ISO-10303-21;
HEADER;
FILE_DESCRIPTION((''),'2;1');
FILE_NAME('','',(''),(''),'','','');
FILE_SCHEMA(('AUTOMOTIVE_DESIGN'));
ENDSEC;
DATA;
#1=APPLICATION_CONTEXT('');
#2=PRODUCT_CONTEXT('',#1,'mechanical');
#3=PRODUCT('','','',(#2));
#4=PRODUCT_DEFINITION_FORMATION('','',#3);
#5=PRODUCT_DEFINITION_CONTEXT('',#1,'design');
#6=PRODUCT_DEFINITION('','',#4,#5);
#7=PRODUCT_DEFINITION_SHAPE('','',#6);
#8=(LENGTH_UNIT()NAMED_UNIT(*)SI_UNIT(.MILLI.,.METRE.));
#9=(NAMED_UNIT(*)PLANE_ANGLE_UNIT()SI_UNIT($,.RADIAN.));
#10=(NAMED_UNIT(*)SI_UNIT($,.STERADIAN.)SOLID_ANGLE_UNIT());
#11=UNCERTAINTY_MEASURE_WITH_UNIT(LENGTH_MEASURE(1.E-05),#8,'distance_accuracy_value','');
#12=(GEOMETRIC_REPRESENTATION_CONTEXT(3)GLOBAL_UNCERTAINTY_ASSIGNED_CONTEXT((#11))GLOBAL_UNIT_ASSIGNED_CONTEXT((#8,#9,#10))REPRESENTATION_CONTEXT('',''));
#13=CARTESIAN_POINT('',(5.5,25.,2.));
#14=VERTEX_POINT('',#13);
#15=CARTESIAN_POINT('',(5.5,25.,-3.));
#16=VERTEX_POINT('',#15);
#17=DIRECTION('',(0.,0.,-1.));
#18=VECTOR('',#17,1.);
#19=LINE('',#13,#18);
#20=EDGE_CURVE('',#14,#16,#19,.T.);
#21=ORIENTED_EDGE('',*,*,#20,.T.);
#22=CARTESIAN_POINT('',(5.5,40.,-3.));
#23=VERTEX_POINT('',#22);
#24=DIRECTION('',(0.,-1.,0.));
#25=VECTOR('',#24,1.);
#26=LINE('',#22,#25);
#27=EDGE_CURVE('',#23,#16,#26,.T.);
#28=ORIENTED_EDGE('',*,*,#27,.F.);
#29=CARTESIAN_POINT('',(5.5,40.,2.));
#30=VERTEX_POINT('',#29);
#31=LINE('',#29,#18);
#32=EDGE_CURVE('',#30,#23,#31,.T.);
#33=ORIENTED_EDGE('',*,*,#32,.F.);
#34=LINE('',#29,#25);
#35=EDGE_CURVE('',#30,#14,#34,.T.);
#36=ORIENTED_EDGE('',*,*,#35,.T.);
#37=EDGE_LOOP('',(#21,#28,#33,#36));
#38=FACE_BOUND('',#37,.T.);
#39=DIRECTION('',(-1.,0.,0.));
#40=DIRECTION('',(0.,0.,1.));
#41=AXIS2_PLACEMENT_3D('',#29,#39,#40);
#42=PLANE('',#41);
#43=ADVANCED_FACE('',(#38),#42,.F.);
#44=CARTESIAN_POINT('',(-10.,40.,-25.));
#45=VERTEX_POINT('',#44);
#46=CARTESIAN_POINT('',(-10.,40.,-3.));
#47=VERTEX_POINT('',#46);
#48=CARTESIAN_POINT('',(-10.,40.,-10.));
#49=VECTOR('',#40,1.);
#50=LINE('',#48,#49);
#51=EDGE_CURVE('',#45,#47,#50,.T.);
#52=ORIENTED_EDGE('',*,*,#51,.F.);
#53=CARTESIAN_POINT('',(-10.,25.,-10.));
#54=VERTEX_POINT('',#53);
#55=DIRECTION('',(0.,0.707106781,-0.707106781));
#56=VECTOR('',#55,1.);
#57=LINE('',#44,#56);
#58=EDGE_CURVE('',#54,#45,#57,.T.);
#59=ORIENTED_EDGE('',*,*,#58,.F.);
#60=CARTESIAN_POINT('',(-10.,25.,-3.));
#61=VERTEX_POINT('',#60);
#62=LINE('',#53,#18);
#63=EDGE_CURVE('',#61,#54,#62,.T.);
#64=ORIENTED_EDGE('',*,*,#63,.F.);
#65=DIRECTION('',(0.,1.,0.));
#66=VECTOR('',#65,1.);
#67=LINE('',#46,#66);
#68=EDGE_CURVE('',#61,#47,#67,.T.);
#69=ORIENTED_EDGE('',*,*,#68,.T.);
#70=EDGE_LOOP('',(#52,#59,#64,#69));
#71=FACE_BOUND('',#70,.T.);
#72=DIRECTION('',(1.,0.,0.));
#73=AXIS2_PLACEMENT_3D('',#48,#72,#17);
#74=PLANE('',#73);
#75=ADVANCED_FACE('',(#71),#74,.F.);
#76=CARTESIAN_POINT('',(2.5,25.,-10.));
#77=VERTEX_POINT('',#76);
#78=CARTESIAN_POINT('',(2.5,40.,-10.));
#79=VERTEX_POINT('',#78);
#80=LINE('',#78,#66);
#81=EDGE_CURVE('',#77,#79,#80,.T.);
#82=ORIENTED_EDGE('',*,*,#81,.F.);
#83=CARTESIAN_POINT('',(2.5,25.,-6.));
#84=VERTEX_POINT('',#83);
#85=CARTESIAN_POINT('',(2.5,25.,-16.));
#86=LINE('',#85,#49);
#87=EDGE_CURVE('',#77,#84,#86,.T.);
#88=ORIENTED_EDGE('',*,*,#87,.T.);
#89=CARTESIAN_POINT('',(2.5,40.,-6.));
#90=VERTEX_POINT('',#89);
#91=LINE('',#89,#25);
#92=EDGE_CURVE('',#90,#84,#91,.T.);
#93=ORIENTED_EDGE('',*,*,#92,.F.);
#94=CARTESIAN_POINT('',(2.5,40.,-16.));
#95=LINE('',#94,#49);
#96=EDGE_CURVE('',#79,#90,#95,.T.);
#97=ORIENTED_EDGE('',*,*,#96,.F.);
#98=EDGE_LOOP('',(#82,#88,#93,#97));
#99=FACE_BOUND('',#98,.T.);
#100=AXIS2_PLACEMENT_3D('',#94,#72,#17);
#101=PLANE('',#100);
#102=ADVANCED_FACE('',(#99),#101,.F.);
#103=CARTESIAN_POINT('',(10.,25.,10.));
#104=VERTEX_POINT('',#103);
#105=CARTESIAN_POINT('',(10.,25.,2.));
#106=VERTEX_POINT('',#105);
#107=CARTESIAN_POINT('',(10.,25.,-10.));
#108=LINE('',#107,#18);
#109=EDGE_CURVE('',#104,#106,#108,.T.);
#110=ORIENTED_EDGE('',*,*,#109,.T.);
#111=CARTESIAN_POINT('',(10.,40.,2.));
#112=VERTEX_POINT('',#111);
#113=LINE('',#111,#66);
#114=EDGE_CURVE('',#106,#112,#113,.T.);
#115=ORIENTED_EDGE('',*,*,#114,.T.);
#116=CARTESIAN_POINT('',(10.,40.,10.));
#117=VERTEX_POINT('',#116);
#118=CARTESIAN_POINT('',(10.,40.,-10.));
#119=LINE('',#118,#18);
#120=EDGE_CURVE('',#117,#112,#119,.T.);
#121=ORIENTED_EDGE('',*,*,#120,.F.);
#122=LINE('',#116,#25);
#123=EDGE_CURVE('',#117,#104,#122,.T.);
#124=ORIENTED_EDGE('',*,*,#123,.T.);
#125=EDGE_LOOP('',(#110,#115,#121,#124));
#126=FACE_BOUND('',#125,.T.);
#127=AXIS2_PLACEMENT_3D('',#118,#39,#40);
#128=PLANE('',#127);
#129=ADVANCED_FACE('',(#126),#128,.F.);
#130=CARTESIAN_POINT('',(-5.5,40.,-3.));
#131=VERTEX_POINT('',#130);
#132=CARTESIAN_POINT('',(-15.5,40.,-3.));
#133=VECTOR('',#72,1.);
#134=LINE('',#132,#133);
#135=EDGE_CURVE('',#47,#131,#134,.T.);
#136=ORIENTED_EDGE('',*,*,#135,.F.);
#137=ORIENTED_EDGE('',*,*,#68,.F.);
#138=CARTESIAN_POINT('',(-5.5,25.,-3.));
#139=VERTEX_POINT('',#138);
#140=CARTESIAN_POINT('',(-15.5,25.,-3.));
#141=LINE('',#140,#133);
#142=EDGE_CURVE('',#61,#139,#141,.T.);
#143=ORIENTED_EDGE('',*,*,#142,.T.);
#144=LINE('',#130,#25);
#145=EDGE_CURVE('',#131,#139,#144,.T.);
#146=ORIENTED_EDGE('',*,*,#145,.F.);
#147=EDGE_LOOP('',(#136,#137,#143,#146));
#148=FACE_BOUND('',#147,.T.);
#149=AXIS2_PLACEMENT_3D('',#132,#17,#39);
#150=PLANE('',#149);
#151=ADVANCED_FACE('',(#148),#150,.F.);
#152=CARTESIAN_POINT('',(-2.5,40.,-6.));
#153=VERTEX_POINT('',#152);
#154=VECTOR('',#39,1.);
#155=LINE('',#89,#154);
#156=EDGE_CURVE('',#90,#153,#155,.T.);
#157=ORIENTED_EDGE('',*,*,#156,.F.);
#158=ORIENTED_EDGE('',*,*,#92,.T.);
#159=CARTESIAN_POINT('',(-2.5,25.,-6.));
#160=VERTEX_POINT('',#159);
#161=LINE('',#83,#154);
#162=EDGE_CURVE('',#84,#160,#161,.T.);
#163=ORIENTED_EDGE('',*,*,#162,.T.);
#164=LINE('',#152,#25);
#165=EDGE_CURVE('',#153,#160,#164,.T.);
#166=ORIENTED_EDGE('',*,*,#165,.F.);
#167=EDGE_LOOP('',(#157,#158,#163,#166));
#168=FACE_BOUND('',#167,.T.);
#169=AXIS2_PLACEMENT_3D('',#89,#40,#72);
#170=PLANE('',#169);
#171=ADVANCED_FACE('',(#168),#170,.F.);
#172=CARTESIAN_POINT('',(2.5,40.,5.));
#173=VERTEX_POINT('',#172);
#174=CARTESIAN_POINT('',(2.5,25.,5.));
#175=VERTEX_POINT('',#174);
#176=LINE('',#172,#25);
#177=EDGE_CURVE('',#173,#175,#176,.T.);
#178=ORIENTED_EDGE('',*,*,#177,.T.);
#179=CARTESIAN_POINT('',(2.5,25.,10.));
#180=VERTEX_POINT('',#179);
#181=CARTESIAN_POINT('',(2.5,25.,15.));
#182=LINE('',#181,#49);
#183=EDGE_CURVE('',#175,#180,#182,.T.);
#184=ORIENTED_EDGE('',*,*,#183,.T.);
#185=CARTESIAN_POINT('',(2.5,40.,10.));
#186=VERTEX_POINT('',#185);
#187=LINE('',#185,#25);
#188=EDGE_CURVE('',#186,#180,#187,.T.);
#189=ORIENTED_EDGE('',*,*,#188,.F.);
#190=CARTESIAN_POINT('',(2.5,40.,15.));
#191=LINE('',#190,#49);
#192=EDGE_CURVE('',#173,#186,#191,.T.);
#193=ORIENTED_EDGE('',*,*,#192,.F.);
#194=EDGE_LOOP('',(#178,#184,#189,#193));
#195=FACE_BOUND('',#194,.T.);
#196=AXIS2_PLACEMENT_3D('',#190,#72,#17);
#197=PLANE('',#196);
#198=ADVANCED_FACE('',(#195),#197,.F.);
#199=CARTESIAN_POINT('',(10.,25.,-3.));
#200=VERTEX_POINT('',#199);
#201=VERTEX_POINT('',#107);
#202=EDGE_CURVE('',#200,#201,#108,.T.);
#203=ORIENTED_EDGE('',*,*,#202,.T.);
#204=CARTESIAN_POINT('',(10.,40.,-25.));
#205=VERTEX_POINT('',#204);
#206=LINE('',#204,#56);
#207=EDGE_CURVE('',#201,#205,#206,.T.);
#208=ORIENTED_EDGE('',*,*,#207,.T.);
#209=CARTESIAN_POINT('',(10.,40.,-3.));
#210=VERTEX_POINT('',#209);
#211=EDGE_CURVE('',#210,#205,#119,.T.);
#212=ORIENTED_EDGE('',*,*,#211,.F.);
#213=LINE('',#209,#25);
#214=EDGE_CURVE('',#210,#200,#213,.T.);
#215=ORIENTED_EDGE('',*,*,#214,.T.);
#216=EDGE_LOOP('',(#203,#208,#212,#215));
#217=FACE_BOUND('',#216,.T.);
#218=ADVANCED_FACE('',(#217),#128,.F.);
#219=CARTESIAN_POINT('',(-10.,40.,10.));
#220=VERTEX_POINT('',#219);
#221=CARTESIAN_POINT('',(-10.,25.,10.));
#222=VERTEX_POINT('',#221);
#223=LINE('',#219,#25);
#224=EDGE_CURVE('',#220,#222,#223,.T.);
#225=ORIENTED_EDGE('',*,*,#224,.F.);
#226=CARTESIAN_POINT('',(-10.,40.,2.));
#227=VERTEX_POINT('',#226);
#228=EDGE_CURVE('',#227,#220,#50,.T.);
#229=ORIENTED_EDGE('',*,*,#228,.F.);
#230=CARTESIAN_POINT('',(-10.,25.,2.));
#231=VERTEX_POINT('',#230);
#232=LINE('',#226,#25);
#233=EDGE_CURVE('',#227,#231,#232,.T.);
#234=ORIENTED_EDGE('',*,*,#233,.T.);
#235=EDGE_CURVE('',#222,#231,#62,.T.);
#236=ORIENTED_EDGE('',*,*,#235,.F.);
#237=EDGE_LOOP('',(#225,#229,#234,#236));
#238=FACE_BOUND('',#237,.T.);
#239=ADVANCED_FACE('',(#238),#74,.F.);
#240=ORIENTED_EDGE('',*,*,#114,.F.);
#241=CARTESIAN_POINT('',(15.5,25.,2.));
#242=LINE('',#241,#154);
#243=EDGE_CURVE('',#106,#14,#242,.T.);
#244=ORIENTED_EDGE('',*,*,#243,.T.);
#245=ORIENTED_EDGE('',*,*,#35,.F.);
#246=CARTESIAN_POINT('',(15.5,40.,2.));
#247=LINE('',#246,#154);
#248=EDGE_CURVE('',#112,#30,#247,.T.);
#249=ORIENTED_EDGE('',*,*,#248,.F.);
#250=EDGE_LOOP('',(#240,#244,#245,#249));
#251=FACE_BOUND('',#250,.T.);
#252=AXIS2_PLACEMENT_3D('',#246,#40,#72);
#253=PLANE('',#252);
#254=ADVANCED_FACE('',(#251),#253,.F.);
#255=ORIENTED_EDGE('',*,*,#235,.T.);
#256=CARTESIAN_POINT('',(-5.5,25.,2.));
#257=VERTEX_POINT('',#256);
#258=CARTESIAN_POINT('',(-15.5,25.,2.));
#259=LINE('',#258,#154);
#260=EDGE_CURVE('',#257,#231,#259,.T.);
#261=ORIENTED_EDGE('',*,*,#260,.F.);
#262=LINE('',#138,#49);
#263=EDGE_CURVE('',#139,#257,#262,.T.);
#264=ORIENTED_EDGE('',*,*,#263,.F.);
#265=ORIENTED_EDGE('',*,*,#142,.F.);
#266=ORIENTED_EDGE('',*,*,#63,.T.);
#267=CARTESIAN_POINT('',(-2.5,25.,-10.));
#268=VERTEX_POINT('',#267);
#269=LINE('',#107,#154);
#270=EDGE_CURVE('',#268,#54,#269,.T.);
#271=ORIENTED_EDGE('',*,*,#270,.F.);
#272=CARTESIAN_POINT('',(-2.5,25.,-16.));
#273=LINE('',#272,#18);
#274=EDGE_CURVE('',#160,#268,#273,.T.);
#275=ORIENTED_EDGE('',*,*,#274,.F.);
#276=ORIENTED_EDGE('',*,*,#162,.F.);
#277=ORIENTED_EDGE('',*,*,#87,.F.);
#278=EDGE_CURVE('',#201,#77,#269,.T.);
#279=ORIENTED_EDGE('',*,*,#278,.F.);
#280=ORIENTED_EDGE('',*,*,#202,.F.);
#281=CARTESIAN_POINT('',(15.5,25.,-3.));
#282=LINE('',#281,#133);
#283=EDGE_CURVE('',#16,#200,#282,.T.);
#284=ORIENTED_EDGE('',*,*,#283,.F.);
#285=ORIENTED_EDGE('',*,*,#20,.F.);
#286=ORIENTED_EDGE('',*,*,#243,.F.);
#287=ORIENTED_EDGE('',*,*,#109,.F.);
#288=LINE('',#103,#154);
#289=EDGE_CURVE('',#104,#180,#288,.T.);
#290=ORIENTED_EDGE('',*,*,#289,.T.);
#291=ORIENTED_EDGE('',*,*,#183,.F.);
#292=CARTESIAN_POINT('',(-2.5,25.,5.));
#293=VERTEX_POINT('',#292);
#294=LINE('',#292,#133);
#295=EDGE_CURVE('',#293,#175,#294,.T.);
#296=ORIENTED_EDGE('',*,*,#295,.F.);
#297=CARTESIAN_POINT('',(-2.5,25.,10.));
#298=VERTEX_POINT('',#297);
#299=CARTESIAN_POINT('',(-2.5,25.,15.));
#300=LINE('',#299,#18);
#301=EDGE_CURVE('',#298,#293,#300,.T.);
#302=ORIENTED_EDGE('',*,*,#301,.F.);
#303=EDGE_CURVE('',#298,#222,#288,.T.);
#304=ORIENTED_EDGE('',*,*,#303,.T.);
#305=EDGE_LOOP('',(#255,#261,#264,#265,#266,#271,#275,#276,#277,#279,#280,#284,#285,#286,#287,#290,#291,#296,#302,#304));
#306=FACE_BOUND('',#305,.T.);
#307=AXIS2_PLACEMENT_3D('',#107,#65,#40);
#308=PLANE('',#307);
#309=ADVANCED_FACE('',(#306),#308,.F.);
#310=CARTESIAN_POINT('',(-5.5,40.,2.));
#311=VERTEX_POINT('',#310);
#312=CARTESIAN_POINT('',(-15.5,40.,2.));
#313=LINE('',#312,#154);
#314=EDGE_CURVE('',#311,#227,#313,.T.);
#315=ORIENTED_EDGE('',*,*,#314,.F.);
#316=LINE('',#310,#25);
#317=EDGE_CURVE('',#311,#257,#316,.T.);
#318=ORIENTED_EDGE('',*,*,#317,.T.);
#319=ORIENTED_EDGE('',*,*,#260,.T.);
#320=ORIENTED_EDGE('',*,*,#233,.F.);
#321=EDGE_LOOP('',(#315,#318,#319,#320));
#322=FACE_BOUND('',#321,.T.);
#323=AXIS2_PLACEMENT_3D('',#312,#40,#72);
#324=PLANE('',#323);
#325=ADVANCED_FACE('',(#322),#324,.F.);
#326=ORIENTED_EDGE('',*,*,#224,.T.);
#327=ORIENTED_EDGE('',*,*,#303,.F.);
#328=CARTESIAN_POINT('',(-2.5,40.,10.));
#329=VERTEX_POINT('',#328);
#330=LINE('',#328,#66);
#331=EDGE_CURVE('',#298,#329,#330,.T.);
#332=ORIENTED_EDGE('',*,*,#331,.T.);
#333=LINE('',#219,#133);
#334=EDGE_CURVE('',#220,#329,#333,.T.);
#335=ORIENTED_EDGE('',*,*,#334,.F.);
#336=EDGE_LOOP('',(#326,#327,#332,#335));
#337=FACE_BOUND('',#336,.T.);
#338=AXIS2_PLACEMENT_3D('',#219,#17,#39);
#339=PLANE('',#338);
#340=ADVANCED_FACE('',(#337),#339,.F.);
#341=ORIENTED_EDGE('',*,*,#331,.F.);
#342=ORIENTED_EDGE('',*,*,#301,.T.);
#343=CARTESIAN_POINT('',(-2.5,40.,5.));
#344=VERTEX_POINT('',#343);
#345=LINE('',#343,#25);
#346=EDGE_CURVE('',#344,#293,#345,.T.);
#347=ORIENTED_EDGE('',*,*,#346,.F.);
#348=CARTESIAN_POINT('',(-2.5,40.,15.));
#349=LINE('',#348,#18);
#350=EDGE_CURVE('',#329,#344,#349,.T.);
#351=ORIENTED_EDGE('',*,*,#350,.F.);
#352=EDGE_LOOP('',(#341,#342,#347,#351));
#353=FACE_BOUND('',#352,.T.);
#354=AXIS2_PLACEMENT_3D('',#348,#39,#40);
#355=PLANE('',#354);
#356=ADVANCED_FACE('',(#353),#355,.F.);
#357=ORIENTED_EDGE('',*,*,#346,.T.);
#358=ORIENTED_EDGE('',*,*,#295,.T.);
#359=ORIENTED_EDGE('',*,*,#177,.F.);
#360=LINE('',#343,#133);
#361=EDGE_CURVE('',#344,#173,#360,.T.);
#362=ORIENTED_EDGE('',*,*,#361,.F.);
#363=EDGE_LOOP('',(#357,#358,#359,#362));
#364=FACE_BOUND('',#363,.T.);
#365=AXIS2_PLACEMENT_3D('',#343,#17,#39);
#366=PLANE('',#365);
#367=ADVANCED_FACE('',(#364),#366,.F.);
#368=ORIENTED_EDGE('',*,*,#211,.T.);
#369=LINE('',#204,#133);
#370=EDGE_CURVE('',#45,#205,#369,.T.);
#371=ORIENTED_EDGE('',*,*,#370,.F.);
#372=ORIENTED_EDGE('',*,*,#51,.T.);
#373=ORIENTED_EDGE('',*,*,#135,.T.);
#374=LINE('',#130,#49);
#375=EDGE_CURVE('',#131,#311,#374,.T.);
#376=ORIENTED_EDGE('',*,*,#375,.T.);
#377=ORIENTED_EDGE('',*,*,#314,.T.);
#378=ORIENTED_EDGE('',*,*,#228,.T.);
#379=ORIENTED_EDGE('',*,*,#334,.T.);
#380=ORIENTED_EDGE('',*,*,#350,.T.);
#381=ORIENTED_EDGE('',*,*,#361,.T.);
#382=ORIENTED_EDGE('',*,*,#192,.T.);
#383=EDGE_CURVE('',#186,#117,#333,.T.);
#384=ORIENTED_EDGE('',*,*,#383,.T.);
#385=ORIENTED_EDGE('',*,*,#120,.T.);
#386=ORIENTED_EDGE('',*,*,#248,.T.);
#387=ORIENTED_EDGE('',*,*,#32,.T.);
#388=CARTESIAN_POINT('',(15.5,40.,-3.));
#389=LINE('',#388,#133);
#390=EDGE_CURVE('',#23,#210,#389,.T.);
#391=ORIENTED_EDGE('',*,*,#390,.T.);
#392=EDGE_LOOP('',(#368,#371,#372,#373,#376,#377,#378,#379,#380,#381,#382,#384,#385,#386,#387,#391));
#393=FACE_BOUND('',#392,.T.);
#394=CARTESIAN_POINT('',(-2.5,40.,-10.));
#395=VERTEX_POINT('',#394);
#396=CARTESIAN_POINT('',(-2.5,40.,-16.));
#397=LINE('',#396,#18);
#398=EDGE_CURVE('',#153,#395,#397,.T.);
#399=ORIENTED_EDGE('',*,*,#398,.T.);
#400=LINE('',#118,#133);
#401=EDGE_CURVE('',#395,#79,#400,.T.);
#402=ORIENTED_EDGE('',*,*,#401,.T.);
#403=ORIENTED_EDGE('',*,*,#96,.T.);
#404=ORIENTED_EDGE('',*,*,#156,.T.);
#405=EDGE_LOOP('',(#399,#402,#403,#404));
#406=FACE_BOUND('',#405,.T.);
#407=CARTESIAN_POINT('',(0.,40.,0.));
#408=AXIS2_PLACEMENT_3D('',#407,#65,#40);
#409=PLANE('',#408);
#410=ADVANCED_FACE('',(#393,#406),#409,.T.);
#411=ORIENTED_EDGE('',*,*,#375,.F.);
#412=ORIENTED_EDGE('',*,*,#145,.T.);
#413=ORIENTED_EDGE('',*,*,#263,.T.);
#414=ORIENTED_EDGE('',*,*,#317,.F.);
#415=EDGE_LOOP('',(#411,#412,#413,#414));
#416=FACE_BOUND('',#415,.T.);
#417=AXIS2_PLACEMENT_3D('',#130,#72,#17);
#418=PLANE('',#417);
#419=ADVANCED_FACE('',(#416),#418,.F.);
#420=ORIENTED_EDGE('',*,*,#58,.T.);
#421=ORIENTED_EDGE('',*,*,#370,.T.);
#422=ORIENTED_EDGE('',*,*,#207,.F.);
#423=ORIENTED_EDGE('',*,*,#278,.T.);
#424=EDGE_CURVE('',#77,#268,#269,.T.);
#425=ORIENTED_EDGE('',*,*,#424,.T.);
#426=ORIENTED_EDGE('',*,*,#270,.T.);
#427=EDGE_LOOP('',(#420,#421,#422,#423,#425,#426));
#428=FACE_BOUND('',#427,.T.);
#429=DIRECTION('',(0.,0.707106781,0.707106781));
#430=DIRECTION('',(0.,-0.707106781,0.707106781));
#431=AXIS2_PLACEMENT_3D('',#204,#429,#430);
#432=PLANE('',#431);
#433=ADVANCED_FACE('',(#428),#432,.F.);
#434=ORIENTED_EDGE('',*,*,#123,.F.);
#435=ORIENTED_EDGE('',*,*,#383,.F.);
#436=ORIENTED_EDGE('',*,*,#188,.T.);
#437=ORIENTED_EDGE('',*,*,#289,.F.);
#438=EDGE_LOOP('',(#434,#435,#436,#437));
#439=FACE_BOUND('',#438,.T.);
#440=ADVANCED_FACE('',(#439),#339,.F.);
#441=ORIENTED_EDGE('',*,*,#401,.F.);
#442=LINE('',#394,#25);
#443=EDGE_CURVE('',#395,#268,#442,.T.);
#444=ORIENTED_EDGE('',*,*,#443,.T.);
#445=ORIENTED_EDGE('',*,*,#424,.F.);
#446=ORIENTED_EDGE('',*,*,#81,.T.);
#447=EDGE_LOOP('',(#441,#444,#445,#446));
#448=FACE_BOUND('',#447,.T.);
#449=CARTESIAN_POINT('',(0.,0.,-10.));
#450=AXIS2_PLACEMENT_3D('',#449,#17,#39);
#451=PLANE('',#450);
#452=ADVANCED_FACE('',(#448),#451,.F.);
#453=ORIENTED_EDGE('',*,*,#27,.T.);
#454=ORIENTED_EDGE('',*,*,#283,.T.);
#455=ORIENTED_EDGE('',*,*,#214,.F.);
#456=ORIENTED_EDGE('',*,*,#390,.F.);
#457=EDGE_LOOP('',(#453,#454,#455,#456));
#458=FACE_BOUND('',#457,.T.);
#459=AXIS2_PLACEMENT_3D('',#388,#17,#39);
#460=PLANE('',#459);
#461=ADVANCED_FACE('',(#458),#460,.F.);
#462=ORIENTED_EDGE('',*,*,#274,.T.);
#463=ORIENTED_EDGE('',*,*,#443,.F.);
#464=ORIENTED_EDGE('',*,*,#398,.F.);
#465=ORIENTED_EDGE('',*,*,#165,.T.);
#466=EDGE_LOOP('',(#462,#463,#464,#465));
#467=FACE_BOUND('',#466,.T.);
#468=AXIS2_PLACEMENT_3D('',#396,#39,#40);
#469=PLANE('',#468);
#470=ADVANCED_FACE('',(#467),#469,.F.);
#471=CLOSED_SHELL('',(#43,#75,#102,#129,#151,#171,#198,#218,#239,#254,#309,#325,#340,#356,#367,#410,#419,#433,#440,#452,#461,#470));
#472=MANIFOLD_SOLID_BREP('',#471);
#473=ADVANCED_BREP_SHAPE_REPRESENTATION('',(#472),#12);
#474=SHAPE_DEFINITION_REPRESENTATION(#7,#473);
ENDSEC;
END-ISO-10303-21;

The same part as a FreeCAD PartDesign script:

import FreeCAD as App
import Part
import Sketcher
from FreeCAD import Vector


def add_polygon(sketch, points):
    """Adds a closed chain of lines whose ends are joined by coincident constraints."""
    first, n = sketch.GeometryCount, len(points)
    for a, b in zip(points, points[1:] + points[:1]):
        sketch.addGeometry(Part.LineSegment(App.Vector(*a, 0), App.Vector(*b, 0)), False)
    for i in range(n):
        sketch.addConstraint(Sketcher.Constraint("Coincident", first + i, 2, first + (i + 1) % n, 1))

doc = App.newDocument("Part")
body = doc.addObject("PartDesign::Body", "Body")

# Sketch on XZ plane
sketch1 = doc.addObject("Sketcher::SketchObject", "Sketch")
body.addObject(sketch1)
sketch1.AttachmentSupport = (doc.XZ_Plane, [""])
sketch1.MapMode = "FlatFace"
add_polygon(sketch1, [(-10, -10), (-10, 10), (10, 10), (10, -10)])  # lines 0-3
sketch1.addConstraint([
    Sketcher.Constraint("Vertical", 0),
    Sketcher.Constraint("Horizontal", 1),
    Sketcher.Constraint("Vertical", 2),
    Sketcher.Constraint("Horizontal", 3),
    Sketcher.Constraint("Symmetric", 0, 2, 2, 2, -1, 1),
    Sketcher.Constraint("Equal", 3, 0),
    Sketcher.Constraint("DistanceX", 1, 1, 1, 2, 20.0),
])
pad1 = doc.addObject("PartDesign::Pad", "Pad")
body.addObject(pad1)
pad1.Profile = sketch1
pad1.Length = 40
pad1.Reversed = True

# Sketch on XZ plane
sketch2 = doc.addObject("Sketcher::SketchObject", "Sketch001")
body.addObject(sketch2)
sketch2.AttachmentSupport = (doc.XZ_Plane, [""])
sketch2.MapMode = "FlatFace"
add_polygon(sketch2, [(-2, 15), (-2, 5), (2, 5), (2, 15)])  # lines 0-3
sketch2.addConstraint([
    Sketcher.Constraint("Vertical", 0),
    Sketcher.Constraint("Horizontal", 1),
    Sketcher.Constraint("Vertical", 2),
    Sketcher.Constraint("Horizontal", 3),
    Sketcher.Constraint("DistanceX", 1, 1, 1, 2, 5.0),
    Sketcher.Constraint("DistanceY", 0, 2, 0, 1, 10.0),
    Sketcher.Constraint("DistanceY", -1, 1, 0, 2, 5.0),
    Sketcher.Constraint("DistanceX", 0, 2, -1, 1, 2.5),
])
pocket1 = doc.addObject("PartDesign::Pocket", "Pocket")
body.addObject(pocket1)
pocket1.Profile = sketch2
pocket1.Type = "ThroughAll"
doc.recompute()

datumline = doc.addObject("PartDesign::Line", "DatumLine")
body.addObject(datumline)
datumline.Placement = App.Placement(Vector(0, 0, -0.5), App.Rotation(Vector(0, 0, 1), Vector(0, 1, 0)))
polarpattern = doc.addObject("PartDesign::PolarPattern", "PolarPattern")
body.addObject(polarpattern)
polarpattern.Originals = [pocket1]
polarpattern.Axis = (datumline, [""])
polarpattern.Angle = 360
polarpattern.Occurrences = 4
body.Tip = polarpattern

# Sketch on XY plane
sketch3 = doc.addObject("Sketcher::SketchObject", "Sketch002")
body.addObject(sketch3)
sketch3.AttachmentSupport = (doc.XY_Plane, [""])
sketch3.MapMode = "FlatFace"
sketch3.AttachmentOffset = App.Placement(Vector(0, 0, -10), App.Rotation())
add_polygon(sketch3, [(10, 40), (10, 25), (-10, 25), (-10, 40)])  # lines 0-3
sketch3.addConstraint([
    Sketcher.Constraint("Vertical", 0),
    Sketcher.Constraint("Horizontal", 1),
    Sketcher.Constraint("Vertical", 2),
    Sketcher.Constraint("Horizontal", 3),
    Sketcher.Constraint("DistanceX", 1, 2, 1, 1, 20.0),
    Sketcher.Constraint("DistanceY", 0, 2, 0, 1, 15.0),
    Sketcher.Constraint("DistanceX", -1, 1, 0, 2, 10.0),
    Sketcher.Constraint("DistanceY", -1, 1, 0, 2, 25.0),
])
pad2 = doc.addObject("PartDesign::Pad", "Pad001")
body.addObject(pad2)
pad2.Profile = sketch3
pad2.Length = 15
pad2.Reversed = True

# Sketch on YZ plane
sketch4 = doc.addObject("Sketcher::SketchObject", "Sketch003")
body.addObject(sketch4)
sketch4.AttachmentSupport = (doc.YZ_Plane, [""])
sketch4.MapMode = "FlatFace"
sketch4.AttachmentOffset = App.Placement(Vector(0, 0, -10), App.Rotation())
add_polygon(sketch4, [(25, -10), (40, -25), (25, -25)])  # lines 0-2
sketch4.addConstraint([
    Sketcher.Constraint("Horizontal", 1),
    Sketcher.Constraint("Vertical", 2),
    Sketcher.Constraint("Equal", 1, 2),
    Sketcher.Constraint("DistanceX", 1, 2, 1, 1, 15.0),
    Sketcher.Constraint("DistanceX", -1, 1, 0, 2, 40.0),
    Sketcher.Constraint("DistanceY", 0, 2, -1, 1, 25.0),
])
pocket2 = doc.addObject("PartDesign::Pocket", "Pocket001")
body.addObject(pocket2)
pocket2.Profile = sketch4
pocket2.Type = "ThroughAll"
pocket2.Reversed = True

# Sketch on YZ plane
sketch5 = doc.addObject("Sketcher::SketchObject", "Sketch004")
body.addObject(sketch5)
sketch5.AttachmentSupport = (doc.YZ_Plane, [""])
sketch5.MapMode = "FlatFace"
sketch5.AttachmentOffset = App.Placement(Vector(0, 0, -10), App.Rotation())
add_polygon(sketch5, [(25, -10), (0, -10), (0, 10), (25, 10)])  # lines 0-3
sketch5.addConstraint([
    Sketcher.Constraint("Horizontal", 0),
    Sketcher.Constraint("Vertical", 1),
    Sketcher.Constraint("Horizontal", 2),
    Sketcher.Constraint("Vertical", 3),
    Sketcher.Constraint("Symmetric", 0, 2, 1, 2, -1, 1),
    Sketcher.Constraint("DistanceX", 0, 2, 0, 1, 25.0),
    Sketcher.Constraint("DistanceY", 1, 1, 1, 2, 20.0),
])
pocket3 = doc.addObject("PartDesign::Pocket", "Pocket002")
body.addObject(pocket3)
pocket3.Profile = sketch5
pocket3.Type = "ThroughAll"
pocket3.Reversed = True

doc.recompute()
